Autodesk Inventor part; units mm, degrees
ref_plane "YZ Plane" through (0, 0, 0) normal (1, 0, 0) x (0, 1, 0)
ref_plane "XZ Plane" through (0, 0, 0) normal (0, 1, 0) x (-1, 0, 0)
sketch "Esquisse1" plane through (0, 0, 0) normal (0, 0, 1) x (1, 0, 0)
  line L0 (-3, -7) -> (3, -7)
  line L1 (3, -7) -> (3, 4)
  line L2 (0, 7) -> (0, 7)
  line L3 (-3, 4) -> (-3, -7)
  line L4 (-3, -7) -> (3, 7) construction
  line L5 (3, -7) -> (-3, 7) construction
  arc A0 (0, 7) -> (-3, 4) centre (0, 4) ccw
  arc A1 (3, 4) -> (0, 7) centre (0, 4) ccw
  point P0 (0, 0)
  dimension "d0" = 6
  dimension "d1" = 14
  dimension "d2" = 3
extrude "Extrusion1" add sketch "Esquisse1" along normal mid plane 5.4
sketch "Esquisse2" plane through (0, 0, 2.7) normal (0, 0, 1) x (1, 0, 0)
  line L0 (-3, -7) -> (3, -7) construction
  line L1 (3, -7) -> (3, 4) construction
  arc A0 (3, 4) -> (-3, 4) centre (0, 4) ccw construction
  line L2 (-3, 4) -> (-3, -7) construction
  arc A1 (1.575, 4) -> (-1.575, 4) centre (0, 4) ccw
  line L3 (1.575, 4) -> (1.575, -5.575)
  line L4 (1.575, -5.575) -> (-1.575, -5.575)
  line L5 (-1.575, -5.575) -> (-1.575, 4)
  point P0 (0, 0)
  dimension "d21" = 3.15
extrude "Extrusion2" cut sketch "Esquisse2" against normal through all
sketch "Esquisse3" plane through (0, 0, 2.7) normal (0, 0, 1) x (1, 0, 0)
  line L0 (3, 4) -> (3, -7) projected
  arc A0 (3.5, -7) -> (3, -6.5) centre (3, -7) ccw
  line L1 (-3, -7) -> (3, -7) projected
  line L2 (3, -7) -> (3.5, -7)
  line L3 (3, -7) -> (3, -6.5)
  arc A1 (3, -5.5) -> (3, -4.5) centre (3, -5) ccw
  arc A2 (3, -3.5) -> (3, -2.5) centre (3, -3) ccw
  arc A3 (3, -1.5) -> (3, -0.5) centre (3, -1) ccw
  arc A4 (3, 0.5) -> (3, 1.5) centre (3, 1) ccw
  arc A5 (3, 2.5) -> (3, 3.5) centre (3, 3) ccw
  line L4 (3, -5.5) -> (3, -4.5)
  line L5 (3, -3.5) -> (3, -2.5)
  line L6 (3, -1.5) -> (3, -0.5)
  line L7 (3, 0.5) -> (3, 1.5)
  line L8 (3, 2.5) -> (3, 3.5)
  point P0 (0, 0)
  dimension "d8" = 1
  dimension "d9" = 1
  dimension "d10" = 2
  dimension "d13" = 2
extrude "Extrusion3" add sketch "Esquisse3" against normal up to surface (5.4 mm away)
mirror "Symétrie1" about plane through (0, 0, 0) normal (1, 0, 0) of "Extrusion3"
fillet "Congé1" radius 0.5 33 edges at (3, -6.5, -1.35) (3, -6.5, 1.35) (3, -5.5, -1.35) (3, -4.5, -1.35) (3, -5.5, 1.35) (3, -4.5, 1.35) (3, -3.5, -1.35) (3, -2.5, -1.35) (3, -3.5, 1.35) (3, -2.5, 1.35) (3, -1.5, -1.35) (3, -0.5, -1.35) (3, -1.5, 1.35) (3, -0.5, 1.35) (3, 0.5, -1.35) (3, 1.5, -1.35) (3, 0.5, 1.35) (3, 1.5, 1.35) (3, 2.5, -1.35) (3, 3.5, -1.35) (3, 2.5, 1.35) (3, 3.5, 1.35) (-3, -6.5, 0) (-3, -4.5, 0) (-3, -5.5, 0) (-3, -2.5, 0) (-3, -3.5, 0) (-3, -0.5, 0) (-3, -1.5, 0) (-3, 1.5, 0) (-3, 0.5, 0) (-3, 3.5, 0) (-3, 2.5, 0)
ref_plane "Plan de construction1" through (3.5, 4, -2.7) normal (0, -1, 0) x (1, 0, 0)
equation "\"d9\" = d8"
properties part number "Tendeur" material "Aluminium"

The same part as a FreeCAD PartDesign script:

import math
import FreeCAD as App
import Part
import Sketcher

V = App.Vector


def edges_at(feature, points):
    """Names of the edges that pass closest to the given points."""
    edges = feature.Shape.Edges
    near = lambda p: min(range(len(edges)), key=lambda i: edges[i].distToShape(Part.Vertex(*p))[0])
    return sorted({f"Edge{near(p) + 1}" for p in points})

doc = App.newDocument("Part")
body = doc.addObject("PartDesign::Body", "Body")

# Sketch on XY plane
sketch1 = body.newObject("Sketcher::SketchObject", "Sketch")
sketch1.AttachmentSupport = (doc.getObject("XY_Plane"), [""])
sketch1.MapMode = "FlatFace"
sketch1.addGeometry(Part.LineSegment(V(-3, 4, 0), V(-3, -7, 0)), False)
sketch1.addGeometry(Part.LineSegment(V(-3, -7, 0), V(3, -7, 0)), False)
sketch1.addGeometry(Part.LineSegment(V(3, -7, 0), V(3, 4, 0)), False)
sketch1.addGeometry(Part.ArcOfCircle(Part.Circle(V(0, 4, 0), V(0, 0, 1), 3), math.radians(0), math.radians(180)), False)
sketch1.addConstraint(Sketcher.Constraint("Coincident", 0, 2, 1, 1))
sketch1.addConstraint(Sketcher.Constraint("Coincident", 1, 2, 2, 1))
sketch1.addConstraint(Sketcher.Constraint("Tangent", 2, 2, 3, 1))
sketch1.addConstraint(Sketcher.Constraint("Tangent", 3, 2, 0, 1))
sketch1.addConstraint(Sketcher.Constraint("Vertical", 0))
sketch1.addConstraint(Sketcher.Constraint("Horizontal", 1))
sketch1.addConstraint(Sketcher.Constraint("Vertical", 2))
sketch1.addConstraint(Sketcher.Constraint("PointOnObject", 3, 3, -2))
sketch1.addConstraint(Sketcher.Constraint("Radius", 3, 3.0))
sketch1.addConstraint(Sketcher.Constraint("DistanceY", 0, 2, 0, 1, 11.0))
sketch1.addConstraint(Sketcher.Constraint("DistanceY", -1, 1, 3, 3, 4.0))
pad1 = body.newObject("PartDesign::Pad", "Pad")
pad1.Profile = sketch1
pad1.Length = 5.4
pad1.Midplane = True

# Sketch on XY plane
sketch2 = body.newObject("Sketcher::SketchObject", "Sketch001")
sketch2.AttachmentSupport = (doc.getObject("XY_Plane"), [""])
sketch2.MapMode = "FlatFace"
sketch2.AttachmentOffset = App.Placement(V(0, 0, 2.7), App.Rotation())
sketch2.addGeometry(Part.LineSegment(V(1.6, -5.6, 0), V(1.6, 4, 0)), False)
sketch2.addGeometry(Part.ArcOfCircle(Part.Circle(V(0, 4, 0), V(0, 0, 1), 1.6), math.radians(0), math.radians(180)), False)
sketch2.addGeometry(Part.LineSegment(V(-1.6, 4, 0), V(-1.6, -5.6, 0)), False)
sketch2.addGeometry(Part.LineSegment(V(-1.6, -5.6, 0), V(1.6, -5.6, 0)), False)
sketch2.addConstraint(Sketcher.Constraint("Tangent", 0, 2, 1, 1))
sketch2.addConstraint(Sketcher.Constraint("Tangent", 1, 2, 2, 1))
sketch2.addConstraint(Sketcher.Constraint("Coincident", 2, 2, 3, 1))
sketch2.addConstraint(Sketcher.Constraint("Coincident", 3, 2, 0, 1))
sketch2.addConstraint(Sketcher.Constraint("Vertical", 0))
sketch2.addConstraint(Sketcher.Constraint("Vertical", 2))
sketch2.addConstraint(Sketcher.Constraint("Horizontal", 3))
sketch2.addConstraint(Sketcher.Constraint("PointOnObject", 1, 3, -2))
sketch2.addConstraint(Sketcher.Constraint("Radius", 1, 1.575))
sketch2.addConstraint(Sketcher.Constraint("DistanceY", -1, 1, 1, 3, 4.0))
sketch2.addConstraint(Sketcher.Constraint("DistanceY", 0, 1, 0, 2, 9.575))
pocket1 = body.newObject("PartDesign::Pocket", "Pocket")
pocket1.Profile = sketch2
pocket1.Type = "ThroughAll"

# Sketch on XY plane
sketch3 = body.newObject("Sketcher::SketchObject", "Sketch002")
sketch3.AttachmentSupport = (doc.getObject("XY_Plane"), [""])
sketch3.MapMode = "FlatFace"
sketch3.AttachmentOffset = App.Placement(V(0, 0, 2.7), App.Rotation())
sketch3.addGeometry(Part.ArcOfCircle(Part.Circle(V(3, 3, 0), V(0, 0, 1), 0.5), math.radians(-90), math.radians(90)), False)
sketch3.addGeometry(Part.LineSegment(V(3, 3.5, 0), V(3, 2.5, 0)), False)
sketch3.addGeometry(Part.ArcOfCircle(Part.Circle(V(3, -7, 0), V(0, 0, 1), 0.5), math.radians(0), math.radians(90)), False)
sketch3.addGeometry(Part.LineSegment(V(3, -6.5, 0), V(3, -7, 0)), False)
sketch3.addGeometry(Part.LineSegment(V(3, -7, 0), V(3.5, -7, 0)), False)
sketch3.addGeometry(Part.ArcOfCircle(Part.Circle(V(3, -5, 0), V(0, 0, 1), 0.5), math.radians(-90), math.radians(90)), False)
sketch3.addGeometry(Part.LineSegment(V(3, -4.5, 0), V(3, -5.5, 0)), False)
sketch3.addGeometry(Part.ArcOfCircle(Part.Circle(V(3, -3, 0), V(0, 0, 1), 0.5), math.radians(-90), math.radians(90)), False)
sketch3.addGeometry(Part.LineSegment(V(3, -2.5, 0), V(3, -3.5, 0)), False)
sketch3.addGeometry(Part.ArcOfCircle(Part.Circle(V(3, -1, 0), V(0, 0, 1), 0.5), math.radians(-90), math.radians(90)), False)
sketch3.addGeometry(Part.LineSegment(V(3, -0.5, 0), V(3, -1.5, 0)), False)
sketch3.addGeometry(Part.ArcOfCircle(Part.Circle(V(3, 1, 0), V(0, 0, 1), 0.5), math.radians(-90), math.radians(90)), False)
sketch3.addGeometry(Part.LineSegment(V(3, 1.5, 0), V(3, 0.5, 0)), False)
sketch3.addConstraint(Sketcher.Constraint("Coincident", 0, 1, 1, 2))
sketch3.addConstraint(Sketcher.Constraint("Coincident", 1, 1, 0, 2))
sketch3.addConstraint(Sketcher.Constraint("Coincident", 2, 2, 3, 1))
sketch3.addConstraint(Sketcher.Constraint("Coincident", 3, 2, 4, 1))
sketch3.addConstraint(Sketcher.Constraint("Coincident", 4, 2, 2, 1))
sketch3.addConstraint(Sketcher.Constraint("Coincident", 5, 1, 6, 2))
sketch3.addConstraint(Sketcher.Constraint("Coincident", 6, 1, 5, 2))
sketch3.addConstraint(Sketcher.Constraint("Coincident", 7, 1, 8, 2))
sketch3.addConstraint(Sketcher.Constraint("Coincident", 8, 1, 7, 2))
sketch3.addConstraint(Sketcher.Constraint("Coincident", 9, 1, 10, 2))
sketch3.addConstraint(Sketcher.Constraint("Coincident", 10, 1, 9, 2))
sketch3.addConstraint(Sketcher.Constraint("Coincident", 11, 1, 12, 2))
sketch3.addConstraint(Sketcher.Constraint("Coincident", 12, 1, 11, 2))
sketch3.addConstraint(Sketcher.Constraint("Vertical", 1))
sketch3.addConstraint(Sketcher.Constraint("Vertical", 3))
sketch3.addConstraint(Sketcher.Constraint("Horizontal", 4))
sketch3.addConstraint(Sketcher.Constraint("Vertical", 6))
sketch3.addConstraint(Sketcher.Constraint("Vertical", 8))
sketch3.addConstraint(Sketcher.Constraint("Vertical", 10))
sketch3.addConstraint(Sketcher.Constraint("Vertical", 12))
sketch3.addConstraint(Sketcher.Constraint("Coincident", 3, 2, 2, 3))
sketch3.addConstraint(Sketcher.Constraint("Equal", 0, 2))
sketch3.addConstraint(Sketcher.Constraint("Equal", 2, 5))
sketch3.addConstraint(Sketcher.Constraint("Equal", 5, 7))
sketch3.addConstraint(Sketcher.Constraint("Equal", 7, 9))
sketch3.addConstraint(Sketcher.Constraint("Equal", 9, 11))
sketch3.addConstraint(Sketcher.Constraint("Symmetric", 0, 3, 7, 3, -1))
sketch3.addConstraint(Sketcher.Constraint("Symmetric", 9, 3, 11, 3, -1))
sketch3.addConstraint(Sketcher.Constraint("Vertical", 0, 3, 2, 3))
sketch3.addConstraint(Sketcher.Constraint("Vertical", 2, 3, 5, 3))
sketch3.addConstraint(Sketcher.Constraint("Vertical", 7, 3, 9, 3))
sketch3.addConstraint(Sketcher.Constraint("Vertical", 11, 3, 0, 1))
sketch3.addConstraint(Sketcher.Constraint("Vertical", 3, 2, 5, 1))
sketch3.addConstraint(Sketcher.Constraint("Vertical", 6, 1, 7, 1))
sketch3.addConstraint(Sketcher.Constraint("Vertical", 8, 1, 9, 1))
sketch3.addConstraint(Sketcher.Constraint("Vertical", 10, 1, 11, 1))
sketch3.addConstraint(Sketcher.Constraint("Radius", 0, 0.5))
sketch3.addConstraint(Sketcher.Constraint("DistanceY", 9, 3, -1, 1, 1.0))
sketch3.addConstraint(Sketcher.Constraint("DistanceY", 2, 3, 0, 3, 10.0))
sketch3.addConstraint(Sketcher.Constraint("DistanceY", 2, 3, 5, 3, 2.0))
sketch3.addConstraint(Sketcher.Constraint("DistanceY", 5, 3, 7, 3, 2.0))
sketch3.addConstraint(Sketcher.Constraint("DistanceX", -1, 1, 0, 3, 3.0))
pad2 = body.newObject("PartDesign::Pad", "Pad001")
pad2.Profile = sketch3
pad2.Length = 5.4
pad2.Reversed = True
doc.recompute()

mirrored = body.newObject("PartDesign::Mirrored", "Mirrored")
mirrored.Originals = [pad2]
mirrored.MirrorPlane = (doc.getObject("YZ_Plane"), [""])
body.Tip = mirrored
doc.recompute()

fillet = body.newObject("PartDesign::Fillet", "Fillet")
fillet.Base = (mirrored, edges_at(mirrored, [
    (3, -6.5, -1.35),
    (3, -6.5, 1.35),
    (3, -5.5, -1.35),
    (3, -4.5, -1.35),
    (3, -5.5, 1.35),
    (3, -4.5, 1.35),
    (3, -3.5, -1.35),
    (3, -2.5, -1.35),
    (3, -3.5, 1.35),
    (3, -2.5, 1.35),
    (3, -1.5, -1.35),
    (3, -0.5, -1.35),
    (3, -1.5, 1.35),
    (3, -0.5, 1.35),
    (3, 0.5, -1.35),
    (3, 1.5, -1.35),
    (3, 0.5, 1.35),
    (3, 1.5, 1.35),
    (3, 2.5, -1.35),
    (3, 3.5, -1.35),
    (3, 2.5, 1.35),
    (3, 3.5, 1.35),
    (-3, -6.5, 0),
    (-3, -4.5, 0),
    (-3, -5.5, 0),
    (-3, -2.5, 0),
    (-3, -3.5, 0),
    (-3, -0.5, 0),
    (-3, -1.5, 0),
    (-3, 1.5, 0),
    (-3, 0.5, 0),
    (-3, 3.5, 0),
    (-3, 2.5, 0),
]))
fillet.Radius = 0.5

doc.recompute()
